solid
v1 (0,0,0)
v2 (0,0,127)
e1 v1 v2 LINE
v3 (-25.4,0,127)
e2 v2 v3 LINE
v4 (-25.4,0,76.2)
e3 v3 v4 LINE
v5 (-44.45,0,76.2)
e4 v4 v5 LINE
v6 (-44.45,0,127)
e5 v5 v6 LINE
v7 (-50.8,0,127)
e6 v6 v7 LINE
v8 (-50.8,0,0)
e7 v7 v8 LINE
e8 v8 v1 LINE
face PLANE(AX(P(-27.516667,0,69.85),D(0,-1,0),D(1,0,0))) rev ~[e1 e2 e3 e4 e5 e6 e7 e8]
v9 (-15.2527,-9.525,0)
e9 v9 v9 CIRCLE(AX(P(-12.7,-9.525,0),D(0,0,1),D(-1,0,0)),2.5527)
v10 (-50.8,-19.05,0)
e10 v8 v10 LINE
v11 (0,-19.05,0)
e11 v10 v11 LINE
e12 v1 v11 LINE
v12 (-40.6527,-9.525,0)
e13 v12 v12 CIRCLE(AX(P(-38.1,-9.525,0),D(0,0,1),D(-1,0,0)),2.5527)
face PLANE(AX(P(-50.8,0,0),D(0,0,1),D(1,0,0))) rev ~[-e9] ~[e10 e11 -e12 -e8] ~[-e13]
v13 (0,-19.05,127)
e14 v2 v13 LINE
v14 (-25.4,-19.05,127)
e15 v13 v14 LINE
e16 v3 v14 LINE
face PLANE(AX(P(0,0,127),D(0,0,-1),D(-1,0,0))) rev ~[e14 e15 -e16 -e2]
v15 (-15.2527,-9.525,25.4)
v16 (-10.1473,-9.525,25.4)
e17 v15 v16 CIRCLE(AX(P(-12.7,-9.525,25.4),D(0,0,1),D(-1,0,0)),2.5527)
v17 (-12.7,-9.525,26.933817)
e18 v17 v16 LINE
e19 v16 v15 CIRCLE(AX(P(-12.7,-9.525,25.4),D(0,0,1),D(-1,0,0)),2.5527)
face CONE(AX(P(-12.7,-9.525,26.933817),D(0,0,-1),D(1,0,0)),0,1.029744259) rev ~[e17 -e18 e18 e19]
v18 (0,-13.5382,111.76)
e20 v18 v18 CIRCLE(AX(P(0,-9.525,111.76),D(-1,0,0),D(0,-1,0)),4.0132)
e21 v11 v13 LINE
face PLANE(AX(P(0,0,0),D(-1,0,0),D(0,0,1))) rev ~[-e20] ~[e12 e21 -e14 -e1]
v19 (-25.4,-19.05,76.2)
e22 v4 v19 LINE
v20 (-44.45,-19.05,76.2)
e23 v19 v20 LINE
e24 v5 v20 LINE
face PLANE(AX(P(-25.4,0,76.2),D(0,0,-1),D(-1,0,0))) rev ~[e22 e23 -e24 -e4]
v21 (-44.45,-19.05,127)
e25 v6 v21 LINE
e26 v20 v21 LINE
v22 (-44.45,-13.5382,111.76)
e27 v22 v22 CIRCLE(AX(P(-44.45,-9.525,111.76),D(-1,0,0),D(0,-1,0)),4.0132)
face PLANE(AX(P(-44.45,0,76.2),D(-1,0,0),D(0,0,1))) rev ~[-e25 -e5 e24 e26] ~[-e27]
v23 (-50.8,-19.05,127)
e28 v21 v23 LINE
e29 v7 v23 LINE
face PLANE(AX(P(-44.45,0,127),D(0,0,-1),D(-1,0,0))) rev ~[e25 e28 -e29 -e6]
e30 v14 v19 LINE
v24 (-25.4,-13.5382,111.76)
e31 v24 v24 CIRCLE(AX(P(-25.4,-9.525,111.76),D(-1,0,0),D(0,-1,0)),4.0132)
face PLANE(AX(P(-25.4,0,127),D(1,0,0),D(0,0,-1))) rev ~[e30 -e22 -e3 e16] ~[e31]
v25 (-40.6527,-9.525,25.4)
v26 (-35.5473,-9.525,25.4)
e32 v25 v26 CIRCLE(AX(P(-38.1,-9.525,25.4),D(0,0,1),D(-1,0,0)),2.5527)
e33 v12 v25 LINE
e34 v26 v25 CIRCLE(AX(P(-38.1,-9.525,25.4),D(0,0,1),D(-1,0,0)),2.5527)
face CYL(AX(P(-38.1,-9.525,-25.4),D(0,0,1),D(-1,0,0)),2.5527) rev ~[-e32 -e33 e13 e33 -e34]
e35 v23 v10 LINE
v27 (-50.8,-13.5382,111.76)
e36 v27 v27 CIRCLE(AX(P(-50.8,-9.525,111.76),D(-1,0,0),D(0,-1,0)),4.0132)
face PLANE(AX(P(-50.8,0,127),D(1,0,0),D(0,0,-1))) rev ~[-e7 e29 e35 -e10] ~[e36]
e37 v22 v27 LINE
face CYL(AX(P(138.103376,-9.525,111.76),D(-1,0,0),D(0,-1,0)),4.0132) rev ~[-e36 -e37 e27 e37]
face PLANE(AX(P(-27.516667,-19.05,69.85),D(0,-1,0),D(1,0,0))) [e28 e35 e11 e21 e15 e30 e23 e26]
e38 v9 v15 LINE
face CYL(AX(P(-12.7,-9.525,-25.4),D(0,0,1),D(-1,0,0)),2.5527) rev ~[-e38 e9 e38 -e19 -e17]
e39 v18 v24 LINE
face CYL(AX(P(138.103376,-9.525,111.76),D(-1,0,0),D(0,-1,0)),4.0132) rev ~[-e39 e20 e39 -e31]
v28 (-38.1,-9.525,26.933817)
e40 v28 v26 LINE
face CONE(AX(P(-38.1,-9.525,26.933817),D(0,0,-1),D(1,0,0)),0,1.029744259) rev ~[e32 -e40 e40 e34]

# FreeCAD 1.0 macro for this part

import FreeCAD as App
import Part
import Sketcher

V = App.Vector
Q = App.Units.Quantity


def add_polygon(sketch, points):
    """Adds a closed chain of lines whose ends are joined by coincident constraints."""
    first, n = sketch.GeometryCount, len(points)
    for a, b in zip(points, points[1:] + points[:1]):
        sketch.addGeometry(Part.LineSegment(App.Vector(*a, 0), App.Vector(*b, 0)), False)
    for i in range(n):
        sketch.addConstraint(Sketcher.Constraint("Coincident", first + i, 2, first + (i + 1) % n, 1))

doc = App.newDocument("Part")
body = doc.addObject("PartDesign::Body", "Body")

sketch1 = body.newObject("Sketcher::SketchObject", "Sketch")
sketch1.AttachmentSupport = (doc.getObject("XZ_Plane"), [""])
sketch1.MapMode = "FlatFace"
add_polygon(sketch1, [(-51, 0), (0, 0), (0, 127), (-25, 127), (-25, 76), (-44, 76), (-44, 127), (-51, 127)])
sketch1.addConstraint(Sketcher.Constraint("Horizontal", 0))
sketch1.addConstraint(Sketcher.Constraint("Vertical", 1))
sketch1.addConstraint(Sketcher.Constraint("Horizontal", 2))
sketch1.addConstraint(Sketcher.Constraint("Vertical", 3))
sketch1.addConstraint(Sketcher.Constraint("Horizontal", 4))
sketch1.addConstraint(Sketcher.Constraint("Vertical", 5))
sketch1.addConstraint(Sketcher.Constraint("Horizontal", 6))
sketch1.addConstraint(Sketcher.Constraint("Vertical", 7))
sketch1.addConstraint(Sketcher.Constraint("Coincident", 0, 2, -1, 1))
sketch1.addConstraint(Sketcher.Constraint("Horizontal", 2, 2, 5, 2))
sketch1.addConstraint(Sketcher.Constraint("Equal", 0, 3))
sketch1.addConstraint(Sketcher.Constraint("DistanceX", 0, 1, 0, 2, Q("2 in")))
sketch1.addConstraint(Sketcher.Constraint("DistanceX", 2, 2, 2, 1, Q("1 in")))
sketch1.addConstraint(Sketcher.Constraint("DistanceY", 1, 1, 1, 2, Q("5 in")))
sketch1.addConstraint(Sketcher.Constraint("DistanceX", 4, 2, 4, 1, Q("0.75 in")))
pad1 = body.newObject("PartDesign::Pad", "Pad")
pad1.Profile = sketch1
pad1.Length = Q("0.75 in")

sketch2 = body.newObject("Sketcher::SketchObject", "Sketch001")
sketch2.AttachmentSupport = (doc.getObject("YZ_Plane"), [""])
sketch2.MapMode = "FlatFace"
sketch2.addGeometry(Part.Circle(V(-9.5, 111.8, 0), V(0, 0, 1), 4), False)
sketch2.addConstraint(Sketcher.Constraint("Diameter", 0, Q("0.316 in")))
sketch2.addConstraint(Sketcher.Constraint("DistanceY", -1, 1, 0, 3, Q("4.4 in")))
sketch2.addConstraint(Sketcher.Constraint("DistanceX", 0, 3, -1, 1, Q("0.375 in")))
doc.recompute()
hole = body.newObject("PartDesign::Hole", "Hole")
hole.Profile = sketch2
hole.ThreadType = "None"
hole.Diameter = Q("0.316 in")
hole.DepthType = "ThroughAll"

sketch3 = body.newObject("Sketcher::SketchObject", "Sketch002")
sketch3.AttachmentSupport = (doc.getObject("XY_Plane"), [""])
sketch3.MapMode = "FlatFace"
sketch3.addGeometry(Part.Circle(V(-38.1, -9.5, 0), V(0, 0, 1), 2.6), False)
sketch3.addGeometry(Part.Circle(V(-12.7, -9.5, 0), V(0, 0, 1), 2.6), False)
sketch3.addConstraint(Sketcher.Constraint("Equal", 0, 1))
sketch3.addConstraint(Sketcher.Constraint("Horizontal", 0, 3, 1, 3))
sketch3.addConstraint(Sketcher.Constraint("Diameter", 0, Q("0.201 in")))
sketch3.addConstraint(Sketcher.Constraint("DistanceX", 0, 3, 1, 3, Q("1 in")))
sketch3.addConstraint(Sketcher.Constraint("DistanceX", 0, 3, -1, 1, Q("1.5 in")))
sketch3.addConstraint(Sketcher.Constraint("DistanceY", 0, 3, -1, 1, Q("0.375 in")))
doc.recompute()
hole2 = body.newObject("PartDesign::Hole", "Hole001")
hole2.Profile = sketch3
hole2.ThreadType = "None"
hole2.Diameter = Q("0.201 in")
hole2.DepthType = "Dimension"
hole2.Depth = Q("1 in")
hole2.DrillPoint = "Angled"
hole2.DrillPointAngle = 118
hole2.Reversed = True

doc.recompute()
